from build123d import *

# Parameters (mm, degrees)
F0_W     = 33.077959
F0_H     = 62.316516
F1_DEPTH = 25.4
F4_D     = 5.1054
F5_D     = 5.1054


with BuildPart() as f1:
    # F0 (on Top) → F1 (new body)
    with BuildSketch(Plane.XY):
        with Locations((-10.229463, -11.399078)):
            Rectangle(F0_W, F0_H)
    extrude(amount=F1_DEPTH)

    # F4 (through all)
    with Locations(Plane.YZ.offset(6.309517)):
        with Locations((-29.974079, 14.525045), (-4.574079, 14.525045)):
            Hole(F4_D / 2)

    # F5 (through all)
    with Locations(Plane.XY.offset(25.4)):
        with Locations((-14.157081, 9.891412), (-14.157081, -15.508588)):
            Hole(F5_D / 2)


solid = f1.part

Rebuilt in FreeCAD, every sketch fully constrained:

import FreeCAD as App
import Part
import Sketcher
from FreeCAD import Vector
Q = App.Units.Quantity

doc = App.newDocument("Part")
body = doc.addObject("PartDesign::Body", "Body")

sketch1 = doc.addObject("Sketcher::SketchObject", "Sketch")
body.addObject(sketch1)
sketch1.AttachmentSupport = (doc.XY_Plane, [""])
sketch1.MapMode = "FlatFace"
sketch1.addGeometry([
    Part.LineSegment(Vector(-27, 20, 0), Vector(-27, -43, 0)),
    Part.LineSegment(Vector(-27, -43, 0), Vector(6, -43, 0)),
    Part.LineSegment(Vector(6, -43, 0), Vector(6, 20, 0)),
    Part.LineSegment(Vector(6, 20, 0), Vector(-27, 20, 0)),
], False)
sketch1.addConstraint([
    Sketcher.Constraint("Coincident", 0, 2, 1, 1),
    Sketcher.Constraint("Coincident", 1, 2, 2, 1),
    Sketcher.Constraint("Coincident", 2, 2, 3, 1),
    Sketcher.Constraint("Coincident", 3, 2, 0, 1),
    Sketcher.Constraint("Vertical", 0),
    Sketcher.Constraint("Horizontal", 1),
    Sketcher.Constraint("Vertical", 2),
    Sketcher.Constraint("Horizontal", 3),
    Sketcher.Constraint("DistanceX", 1, 1, 1, 2, 33.077959),
    Sketcher.Constraint("DistanceY", 0, 2, 0, 1, 62.316516),
    Sketcher.Constraint("DistanceY", -1, 1, 2, 2, 19.75918),
    Sketcher.Constraint("DistanceX", 0, 2, -1, 1, 26.768442),
])
pad1 = doc.addObject("PartDesign::Pad", "Pad")
body.addObject(pad1)
pad1.Profile = sketch1
pad1.Length = Q("1 in")

sketch2 = doc.addObject("Sketcher::SketchObject", "Sketch001")
body.addObject(sketch2)
sketch2.AttachmentSupport = (doc.YZ_Plane, [""])
sketch2.MapMode = "FlatFace"
sketch2.AttachmentOffset = App.Placement(Vector(0, 0, 6.309517), App.Rotation())
sketch2.addGeometry([
    Part.Circle(Vector(-30, 14.5, 0), Vector(0, 0, 1), 2.6),
    Part.Circle(Vector(-4.6, 14.5, 0), Vector(0, 0, 1), 2.6),
], False)
sketch2.addConstraint([
    Sketcher.Constraint("Equal", 0, 1),
    Sketcher.Constraint("Horizontal", 0, 3, 1, 3),
    Sketcher.Constraint("Diameter", 0, Q("0.201 in")),
    Sketcher.Constraint("DistanceX", 0, 3, 1, 3, Q("1 in")),
    Sketcher.Constraint("DistanceX", 0, 3, -1, 1, 29.974079),
    Sketcher.Constraint("DistanceY", -1, 1, 0, 3, 14.525045),
])
doc.recompute()
hole = doc.addObject("PartDesign::Hole", "Hole")
body.addObject(hole)
hole.Profile = sketch2
hole.ThreadType = "None"
hole.Diameter = Q("0.201 in")
hole.DepthType = "ThroughAll"

sketch3 = doc.addObject("Sketcher::SketchObject", "Sketch002")
body.addObject(sketch3)
sketch3.AttachmentSupport = (doc.XY_Plane, [""])
sketch3.MapMode = "FlatFace"
sketch3.AttachmentOffset = App.Placement(Vector(0, 0, 1 * 25.4), App.Rotation())
sketch3.addGeometry([
    Part.Circle(Vector(-14.2, 9.9, 0), Vector(0, 0, 1), 2.6),
    Part.Circle(Vector(-14.2, -15.5, 0), Vector(0, 0, 1), 2.6),
], False)
sketch3.addConstraint([
    Sketcher.Constraint("Equal", 0, 1),
    Sketcher.Constraint("Vertical", 0, 3, 1, 3),
    Sketcher.Constraint("Diameter", 0, Q("0.201 in")),
    Sketcher.Constraint("DistanceY", 1, 3, 0, 3, Q("1 in")),
    Sketcher.Constraint("DistanceX", 0, 3, -1, 1, 14.157081),
    Sketcher.Constraint("DistanceY", -1, 1, 0, 3, 9.891412),
])
doc.recompute()
hole2 = doc.addObject("PartDesign::Hole", "Hole001")
body.addObject(hole2)
hole2.Profile = sketch3
hole2.ThreadType = "None"
hole2.Diameter = Q("0.201 in")
hole2.DepthType = "ThroughAll"

doc.recompute()
